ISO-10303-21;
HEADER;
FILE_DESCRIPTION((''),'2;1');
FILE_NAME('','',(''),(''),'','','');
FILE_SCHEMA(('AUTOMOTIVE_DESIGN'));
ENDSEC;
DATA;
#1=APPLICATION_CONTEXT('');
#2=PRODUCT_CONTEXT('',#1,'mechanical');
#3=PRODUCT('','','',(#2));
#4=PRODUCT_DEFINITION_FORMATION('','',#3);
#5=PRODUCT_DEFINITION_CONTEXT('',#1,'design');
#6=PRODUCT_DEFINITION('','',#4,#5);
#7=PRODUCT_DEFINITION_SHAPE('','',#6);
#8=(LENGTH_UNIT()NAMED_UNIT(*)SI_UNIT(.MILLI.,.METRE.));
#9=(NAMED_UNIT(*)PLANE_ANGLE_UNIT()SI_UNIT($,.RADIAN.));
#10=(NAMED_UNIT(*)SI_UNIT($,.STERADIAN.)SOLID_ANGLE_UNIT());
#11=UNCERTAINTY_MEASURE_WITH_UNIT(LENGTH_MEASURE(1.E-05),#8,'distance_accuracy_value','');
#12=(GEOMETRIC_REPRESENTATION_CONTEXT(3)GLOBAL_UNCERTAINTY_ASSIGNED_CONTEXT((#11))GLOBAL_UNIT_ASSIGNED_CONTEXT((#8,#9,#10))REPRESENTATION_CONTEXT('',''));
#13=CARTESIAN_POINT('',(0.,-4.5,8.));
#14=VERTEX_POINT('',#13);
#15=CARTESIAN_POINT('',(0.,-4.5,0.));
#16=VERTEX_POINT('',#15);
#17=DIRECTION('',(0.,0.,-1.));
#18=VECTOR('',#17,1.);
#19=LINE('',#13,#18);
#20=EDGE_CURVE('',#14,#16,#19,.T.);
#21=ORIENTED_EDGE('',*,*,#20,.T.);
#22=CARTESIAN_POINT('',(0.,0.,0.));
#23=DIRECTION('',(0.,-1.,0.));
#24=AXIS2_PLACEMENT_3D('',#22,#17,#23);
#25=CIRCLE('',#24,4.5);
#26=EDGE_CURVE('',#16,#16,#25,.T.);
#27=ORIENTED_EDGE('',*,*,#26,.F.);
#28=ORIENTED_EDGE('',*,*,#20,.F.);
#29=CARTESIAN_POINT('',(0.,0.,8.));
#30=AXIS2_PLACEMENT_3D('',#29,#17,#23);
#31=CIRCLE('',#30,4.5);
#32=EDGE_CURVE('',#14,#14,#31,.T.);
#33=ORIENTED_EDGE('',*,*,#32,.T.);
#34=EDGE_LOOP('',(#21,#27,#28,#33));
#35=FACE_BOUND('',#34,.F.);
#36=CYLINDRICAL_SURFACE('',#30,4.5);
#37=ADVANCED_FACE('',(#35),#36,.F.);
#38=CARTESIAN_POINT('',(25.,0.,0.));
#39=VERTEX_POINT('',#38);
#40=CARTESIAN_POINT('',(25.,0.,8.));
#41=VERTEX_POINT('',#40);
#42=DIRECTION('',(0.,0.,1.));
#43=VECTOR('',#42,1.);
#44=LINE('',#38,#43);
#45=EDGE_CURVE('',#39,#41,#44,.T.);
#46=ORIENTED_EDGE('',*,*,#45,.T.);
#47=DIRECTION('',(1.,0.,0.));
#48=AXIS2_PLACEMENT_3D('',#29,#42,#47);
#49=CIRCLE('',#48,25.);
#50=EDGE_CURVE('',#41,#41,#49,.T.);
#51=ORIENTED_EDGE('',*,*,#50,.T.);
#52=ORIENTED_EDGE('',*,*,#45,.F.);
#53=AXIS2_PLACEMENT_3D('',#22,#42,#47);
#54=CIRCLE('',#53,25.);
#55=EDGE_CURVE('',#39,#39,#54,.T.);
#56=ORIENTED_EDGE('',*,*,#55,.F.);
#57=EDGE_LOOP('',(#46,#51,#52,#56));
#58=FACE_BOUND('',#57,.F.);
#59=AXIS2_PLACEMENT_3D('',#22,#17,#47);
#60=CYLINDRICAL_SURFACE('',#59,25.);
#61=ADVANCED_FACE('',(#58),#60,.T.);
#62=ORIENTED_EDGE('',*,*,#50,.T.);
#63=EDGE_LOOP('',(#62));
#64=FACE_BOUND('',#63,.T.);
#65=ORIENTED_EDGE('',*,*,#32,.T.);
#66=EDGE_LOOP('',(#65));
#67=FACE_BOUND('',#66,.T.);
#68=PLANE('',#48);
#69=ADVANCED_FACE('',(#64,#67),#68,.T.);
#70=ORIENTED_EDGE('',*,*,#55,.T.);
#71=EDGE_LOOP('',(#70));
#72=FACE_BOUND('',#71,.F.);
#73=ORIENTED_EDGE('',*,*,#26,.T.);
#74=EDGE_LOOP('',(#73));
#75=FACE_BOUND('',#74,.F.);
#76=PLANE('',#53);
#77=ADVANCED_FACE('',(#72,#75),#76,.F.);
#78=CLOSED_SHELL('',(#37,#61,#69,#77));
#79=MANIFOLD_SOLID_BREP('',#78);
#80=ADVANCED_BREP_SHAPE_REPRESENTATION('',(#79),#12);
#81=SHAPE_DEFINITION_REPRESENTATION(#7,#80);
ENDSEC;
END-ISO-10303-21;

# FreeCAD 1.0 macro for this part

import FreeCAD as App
import Part
import Sketcher
Q = App.Units.Quantity

doc = App.newDocument("Part")
params = doc.addObject("Spreadsheet::Sheet", "Params")
for row, (alias, value) in enumerate([
    ("sketch1_diameter", "50 mm"),
    ("pad1_length", "8 mm"),
    ("sketch2_diameter", "9 mm"),
    ("hole_diameter", "9 mm"),
], start=1):
    params.set(f"A{row}", alias)
    params.set(f"B{row}", "=" + value)
    params.setAlias(f"B{row}", alias)

body = doc.addObject("PartDesign::Body", "Body")

# Sketch on XY plane
sketch1 = body.newObject("Sketcher::SketchObject", "Sketch")
sketch1.AttachmentSupport = (doc.getObject("XY_Plane"), [""])
sketch1.MapMode = "FlatFace"
sketch1.addGeometry(Part.Circle(App.Vector(0, 0, 0), App.Vector(0, 0, 1), 25), False)
sketch1.addConstraint(Sketcher.Constraint("Coincident", 0, 3, -1, 1))
sketch1.addConstraint(Sketcher.Constraint("Diameter", 0, Q("50 mm")))
sketch1.setExpression("Constraints[1]", "Params.sketch1_diameter")
pad1 = body.newObject("PartDesign::Pad", "Pad")
pad1.Profile = sketch1
pad1.setExpression("Length", "Params.pad1_length")

# Sketch on XY plane
sketch2 = body.newObject("Sketcher::SketchObject", "Sketch001")
sketch2.AttachmentSupport = (doc.getObject("XY_Plane"), [""])
sketch2.MapMode = "FlatFace"
sketch2.AttachmentOffset = App.Placement(App.Vector(0, 0, 8), App.Rotation())
sketch2.addGeometry(Part.Circle(App.Vector(0, 0, 0), App.Vector(0, 0, 1), 4.5), False)
sketch2.addConstraint(Sketcher.Constraint("Coincident", 0, 3, -1, 1))
sketch2.addConstraint(Sketcher.Constraint("Diameter", 0, Q("9 mm")))
sketch2.setExpression("Constraints[1]", "Params.sketch2_diameter")
doc.recompute()
hole = body.newObject("PartDesign::Hole", "Hole")
hole.Profile = sketch2
hole.ThreadType = "None"
hole.setExpression("Diameter", "Params.hole_diameter")
hole.DepthType = "ThroughAll"

doc.recompute()
